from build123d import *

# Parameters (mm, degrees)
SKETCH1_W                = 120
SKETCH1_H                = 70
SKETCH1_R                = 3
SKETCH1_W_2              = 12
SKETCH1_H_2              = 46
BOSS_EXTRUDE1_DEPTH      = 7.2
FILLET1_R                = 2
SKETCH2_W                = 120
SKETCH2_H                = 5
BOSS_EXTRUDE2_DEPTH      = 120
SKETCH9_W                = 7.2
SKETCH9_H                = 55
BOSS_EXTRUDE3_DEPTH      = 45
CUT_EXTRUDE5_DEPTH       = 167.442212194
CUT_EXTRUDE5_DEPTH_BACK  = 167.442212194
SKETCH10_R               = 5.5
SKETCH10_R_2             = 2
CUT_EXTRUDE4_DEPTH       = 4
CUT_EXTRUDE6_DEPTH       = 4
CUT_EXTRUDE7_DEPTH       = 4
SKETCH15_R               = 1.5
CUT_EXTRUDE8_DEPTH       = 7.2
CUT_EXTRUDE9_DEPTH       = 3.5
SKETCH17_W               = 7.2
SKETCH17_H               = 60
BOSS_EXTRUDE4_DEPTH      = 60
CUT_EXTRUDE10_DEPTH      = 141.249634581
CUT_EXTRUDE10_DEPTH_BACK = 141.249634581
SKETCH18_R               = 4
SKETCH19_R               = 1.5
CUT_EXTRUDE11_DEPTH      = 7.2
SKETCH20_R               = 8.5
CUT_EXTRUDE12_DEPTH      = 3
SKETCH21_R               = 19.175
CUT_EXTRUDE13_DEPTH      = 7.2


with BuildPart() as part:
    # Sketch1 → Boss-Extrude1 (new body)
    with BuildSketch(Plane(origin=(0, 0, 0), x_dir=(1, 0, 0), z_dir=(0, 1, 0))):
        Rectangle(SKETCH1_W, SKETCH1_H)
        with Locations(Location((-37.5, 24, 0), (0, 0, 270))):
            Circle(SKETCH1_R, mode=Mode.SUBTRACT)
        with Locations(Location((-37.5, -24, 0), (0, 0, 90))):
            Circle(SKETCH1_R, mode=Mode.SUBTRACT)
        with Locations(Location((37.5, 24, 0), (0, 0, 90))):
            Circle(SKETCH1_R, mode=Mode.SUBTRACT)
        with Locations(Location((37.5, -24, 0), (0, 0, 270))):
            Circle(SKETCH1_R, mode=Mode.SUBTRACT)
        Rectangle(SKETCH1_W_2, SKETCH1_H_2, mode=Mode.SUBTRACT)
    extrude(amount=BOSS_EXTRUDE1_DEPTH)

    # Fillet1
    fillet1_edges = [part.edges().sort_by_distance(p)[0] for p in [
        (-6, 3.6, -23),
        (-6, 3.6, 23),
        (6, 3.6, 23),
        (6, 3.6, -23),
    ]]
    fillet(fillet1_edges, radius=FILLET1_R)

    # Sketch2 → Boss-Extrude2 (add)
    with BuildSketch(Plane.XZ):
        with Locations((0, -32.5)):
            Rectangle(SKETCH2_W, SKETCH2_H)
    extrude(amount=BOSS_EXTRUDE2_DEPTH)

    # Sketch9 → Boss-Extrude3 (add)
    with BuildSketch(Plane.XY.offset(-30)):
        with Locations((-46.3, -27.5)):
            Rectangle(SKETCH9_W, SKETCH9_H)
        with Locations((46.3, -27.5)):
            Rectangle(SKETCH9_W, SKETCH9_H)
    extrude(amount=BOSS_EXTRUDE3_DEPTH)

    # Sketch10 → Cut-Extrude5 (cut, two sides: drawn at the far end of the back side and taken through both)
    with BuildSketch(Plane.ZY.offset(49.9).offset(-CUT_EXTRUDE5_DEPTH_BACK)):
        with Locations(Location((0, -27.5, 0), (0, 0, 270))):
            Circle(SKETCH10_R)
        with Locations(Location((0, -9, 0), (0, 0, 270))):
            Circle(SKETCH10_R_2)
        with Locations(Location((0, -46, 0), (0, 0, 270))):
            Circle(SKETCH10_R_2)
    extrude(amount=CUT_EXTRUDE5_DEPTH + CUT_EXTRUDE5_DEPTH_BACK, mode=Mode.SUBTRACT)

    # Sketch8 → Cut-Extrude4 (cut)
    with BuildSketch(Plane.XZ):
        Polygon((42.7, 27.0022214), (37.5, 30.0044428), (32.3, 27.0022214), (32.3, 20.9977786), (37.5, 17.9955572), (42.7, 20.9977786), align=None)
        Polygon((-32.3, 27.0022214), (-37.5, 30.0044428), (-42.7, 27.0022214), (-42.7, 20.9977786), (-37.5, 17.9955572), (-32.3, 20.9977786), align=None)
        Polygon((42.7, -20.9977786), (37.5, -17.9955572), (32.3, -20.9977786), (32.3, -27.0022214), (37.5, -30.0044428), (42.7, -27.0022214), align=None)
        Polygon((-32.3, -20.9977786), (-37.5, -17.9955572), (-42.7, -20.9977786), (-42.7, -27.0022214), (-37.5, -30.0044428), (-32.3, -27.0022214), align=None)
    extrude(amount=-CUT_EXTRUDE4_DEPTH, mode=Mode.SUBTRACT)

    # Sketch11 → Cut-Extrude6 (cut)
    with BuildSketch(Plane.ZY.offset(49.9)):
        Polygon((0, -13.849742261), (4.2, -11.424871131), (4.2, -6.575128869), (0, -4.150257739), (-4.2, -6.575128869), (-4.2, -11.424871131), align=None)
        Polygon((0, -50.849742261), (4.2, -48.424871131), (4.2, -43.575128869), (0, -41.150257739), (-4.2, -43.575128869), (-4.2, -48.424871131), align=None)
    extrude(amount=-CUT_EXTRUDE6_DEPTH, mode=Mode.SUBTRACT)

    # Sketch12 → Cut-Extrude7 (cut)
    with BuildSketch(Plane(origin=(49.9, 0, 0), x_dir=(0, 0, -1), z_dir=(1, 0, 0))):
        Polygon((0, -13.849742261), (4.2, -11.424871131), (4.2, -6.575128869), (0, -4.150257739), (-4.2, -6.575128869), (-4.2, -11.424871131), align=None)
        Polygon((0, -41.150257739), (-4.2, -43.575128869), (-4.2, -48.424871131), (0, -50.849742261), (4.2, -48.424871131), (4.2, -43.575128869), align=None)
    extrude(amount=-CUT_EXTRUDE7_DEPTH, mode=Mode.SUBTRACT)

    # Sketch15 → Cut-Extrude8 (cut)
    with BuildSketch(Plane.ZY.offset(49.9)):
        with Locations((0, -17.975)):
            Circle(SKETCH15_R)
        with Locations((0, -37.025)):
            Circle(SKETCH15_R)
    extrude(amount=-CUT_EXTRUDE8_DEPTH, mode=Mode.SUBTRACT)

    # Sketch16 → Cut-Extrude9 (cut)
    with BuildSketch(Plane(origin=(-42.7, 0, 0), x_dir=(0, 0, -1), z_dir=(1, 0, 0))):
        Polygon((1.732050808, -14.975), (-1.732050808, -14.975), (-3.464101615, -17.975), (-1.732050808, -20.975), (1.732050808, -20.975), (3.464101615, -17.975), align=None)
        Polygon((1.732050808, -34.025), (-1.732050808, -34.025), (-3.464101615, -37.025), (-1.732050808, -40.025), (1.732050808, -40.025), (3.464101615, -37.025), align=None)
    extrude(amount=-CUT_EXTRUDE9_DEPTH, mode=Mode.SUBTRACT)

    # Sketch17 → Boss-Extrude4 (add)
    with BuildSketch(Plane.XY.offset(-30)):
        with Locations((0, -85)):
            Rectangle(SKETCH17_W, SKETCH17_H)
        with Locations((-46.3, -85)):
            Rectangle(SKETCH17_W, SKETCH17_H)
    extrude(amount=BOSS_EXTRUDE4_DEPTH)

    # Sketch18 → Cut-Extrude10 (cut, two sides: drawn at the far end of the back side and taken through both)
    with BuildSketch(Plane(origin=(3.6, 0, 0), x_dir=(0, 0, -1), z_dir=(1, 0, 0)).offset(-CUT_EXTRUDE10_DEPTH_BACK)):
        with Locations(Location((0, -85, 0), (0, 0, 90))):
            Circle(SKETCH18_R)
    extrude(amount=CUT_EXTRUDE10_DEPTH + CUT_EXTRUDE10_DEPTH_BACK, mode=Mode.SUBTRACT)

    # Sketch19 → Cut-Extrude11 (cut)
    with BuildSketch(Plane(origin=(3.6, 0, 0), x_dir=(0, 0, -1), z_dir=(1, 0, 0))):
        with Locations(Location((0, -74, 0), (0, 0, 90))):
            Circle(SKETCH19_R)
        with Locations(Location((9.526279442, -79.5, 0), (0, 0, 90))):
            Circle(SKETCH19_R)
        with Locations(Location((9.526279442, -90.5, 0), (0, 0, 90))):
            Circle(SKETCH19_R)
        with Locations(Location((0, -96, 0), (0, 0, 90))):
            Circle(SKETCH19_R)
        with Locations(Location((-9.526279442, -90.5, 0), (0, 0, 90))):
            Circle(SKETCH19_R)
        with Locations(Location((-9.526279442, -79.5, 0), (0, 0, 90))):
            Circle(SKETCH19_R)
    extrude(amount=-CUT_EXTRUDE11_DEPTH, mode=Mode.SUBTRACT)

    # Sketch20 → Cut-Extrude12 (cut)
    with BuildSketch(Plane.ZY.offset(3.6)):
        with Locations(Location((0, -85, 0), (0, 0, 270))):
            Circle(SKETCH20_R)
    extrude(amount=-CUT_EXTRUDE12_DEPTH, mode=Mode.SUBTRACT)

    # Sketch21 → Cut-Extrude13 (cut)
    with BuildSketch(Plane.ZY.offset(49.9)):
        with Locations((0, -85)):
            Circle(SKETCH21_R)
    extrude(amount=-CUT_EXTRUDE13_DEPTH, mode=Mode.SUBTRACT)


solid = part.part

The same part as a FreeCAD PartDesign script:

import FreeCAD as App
import Part
import Sketcher

V = App.Vector
Q = App.Units.Quantity


def edges_at(feature, points):
    """Names of the edges that pass closest to the given points."""
    edges = feature.Shape.Edges
    near = lambda p: min(range(len(edges)), key=lambda i: edges[i].distToShape(Part.Vertex(*p))[0])
    return sorted({f"Edge{near(p) + 1}" for p in points})


def add_polygon(sketch, points):
    """Adds a closed chain of lines whose ends are joined by coincident constraints."""
    first, n = sketch.GeometryCount, len(points)
    for a, b in zip(points, points[1:] + points[:1]):
        sketch.addGeometry(Part.LineSegment(App.Vector(*a, 0), App.Vector(*b, 0)), False)
    for i in range(n):
        sketch.addConstraint(Sketcher.Constraint("Coincident", first + i, 2, first + (i + 1) % n, 1))

doc = App.newDocument("Part")
params = doc.addObject("Spreadsheet::Sheet", "Params")
for row, (alias, value) in enumerate([
    ("sketch1_diameter", "6 mm"),
    ("sketch1_width", "120 mm"),
    ("sketch1_width2", "12 mm"),
    ("sketch1_height", "70 mm"),
    ("sketch1_height2", "46 mm"),
    ("pad1_length", "7.2 mm"),
    ("fillet_radius", "2 mm"),
    ("sketch2_width", "120 mm"),
    ("sketch2_height", "5 mm"),
    ("pad2_length", "120 mm"),
    ("sketch3_height", "55 mm"),
    ("sketch3_width", "7.2 mm"),
    ("pad3_length", "45 mm"),
    ("sketch4_diameter", "11 mm"),
    ("sketch4_diameter2", "4 mm"),
    ("pocket2_length", "4 mm"),
    ("pocket3_length", "4 mm"),
    ("pocket4_length", "4 mm"),
    ("sketch8_diameter", "3 mm"),
    ("pocket5_length", "7.2 mm"),
    ("pocket6_length", "3.5 mm"),
    ("sketch10_height", "60 mm"),
    ("sketch10_width", "7.2 mm"),
    ("pad4_length", "60 mm"),
    ("sketch11_diameter", "8 mm"),
    ("sketch12_diameter", "3 mm"),
    ("pocket8_length", "7.2 mm"),
    ("sketch13_diameter", "17 mm"),
    ("pocket9_length", "3 mm"),
    ("sketch14_diameter", "38.35 mm"),
    ("pocket10_length", "7.2 mm"),
], start=1):
    params.set(f"A{row}", alias)
    params.set(f"B{row}", "=" + value)
    params.setAlias(f"B{row}", alias)

body = doc.addObject("PartDesign::Body", "Body")

# Sketch on XZ plane
sketch1 = body.newObject("Sketcher::SketchObject", "Sketch")
sketch1.AttachmentSupport = (doc.getObject("XZ_Plane"), [""])
sketch1.MapMode = "FlatFace"
add_polygon(sketch1, [(-60, -35), (-60, 35), (60, 35), (60, -35)])  # lines 0-3
sketch1.addGeometry(Part.Circle(V(-37.5, 24, 0), V(0, 0, 1), 3), False)  # 4
sketch1.addGeometry(Part.Circle(V(37.5, 24, 0), V(0, 0, 1), 3), False)  # 5
sketch1.addGeometry(Part.Circle(V(-37.5, -24, 0), V(0, 0, 1), 3), False)  # 6
add_polygon(sketch1, [(6, 23), (-6, 23), (-6, -23), (6, -23)])  # lines 7-10
sketch1.addGeometry(Part.Circle(V(37.5, -24, 0), V(0, 0, 1), 3), False)  # 11
sketch1.addConstraint(Sketcher.Constraint("Vertical", 0))
sketch1.addConstraint(Sketcher.Constraint("Horizontal", 1))
sketch1.addConstraint(Sketcher.Constraint("Vertical", 2))
sketch1.addConstraint(Sketcher.Constraint("Horizontal", 3))
sketch1.addConstraint(Sketcher.Constraint("Horizontal", 7))
sketch1.addConstraint(Sketcher.Constraint("Vertical", 8))
sketch1.addConstraint(Sketcher.Constraint("Horizontal", 9))
sketch1.addConstraint(Sketcher.Constraint("Vertical", 10))
sketch1.addConstraint(Sketcher.Constraint("Equal", 4, 5))
sketch1.addConstraint(Sketcher.Constraint("Equal", 5, 6))
sketch1.addConstraint(Sketcher.Constraint("Equal", 6, 11))
sketch1.addConstraint(Sketcher.Constraint("Symmetric", 5, 3, 6, 3, -1, 1))
sketch1.addConstraint(Sketcher.Constraint("Symmetric", 4, 3, 11, 3, -1, 1))
sketch1.addConstraint(Sketcher.Constraint("Symmetric", 0, 2, 2, 2, -1, 1))
sketch1.addConstraint(Sketcher.Constraint("Symmetric", 7, 2, 9, 2, -1, 1))
sketch1.addConstraint(Sketcher.Constraint("Symmetric", 4, 3, 5, 3, -2))
sketch1.addConstraint(Sketcher.Constraint("Diameter", 4, Q("6 mm")))
sketch1.addConstraint(Sketcher.Constraint("DistanceX", 1, 1, 1, 2, Q("120 mm")))
sketch1.addConstraint(Sketcher.Constraint("DistanceX", 7, 2, 7, 1, Q("12 mm")))
sketch1.addConstraint(Sketcher.Constraint("DistanceY", 0, 1, 0, 2, Q("70 mm")))
sketch1.addConstraint(Sketcher.Constraint("DistanceY", 8, 2, 8, 1, Q("46 mm")))
sketch1.addConstraint(Sketcher.Constraint("DistanceY", -1, 1, 4, 3, Q("24 mm")))
sketch1.addConstraint(Sketcher.Constraint("DistanceX", 4, 3, 5, 3, Q("75 mm")))
sketch1.setExpression("Constraints[24]", "Params.sketch1_diameter")
sketch1.setExpression("Constraints[25]", "Params.sketch1_width")
sketch1.setExpression("Constraints[26]", "Params.sketch1_width2")
sketch1.setExpression("Constraints[27]", "Params.sketch1_height")
sketch1.setExpression("Constraints[28]", "Params.sketch1_height2")
pad1 = body.newObject("PartDesign::Pad", "Pad")
pad1.Profile = sketch1
pad1.setExpression("Length", "Params.pad1_length")
pad1.Reversed = True
doc.recompute()

fillet = body.newObject("PartDesign::Fillet", "Fillet")
fillet.Base = (pad1, edges_at(pad1, [
    (-6, 3.6, -23),
    (-6, 3.6, 23),
    (6, 3.6, 23),
    (6, 3.6, -23),
]))
fillet.setExpression("Radius", "Params.fillet_radius")

# Sketch on XZ plane
sketch2 = body.newObject("Sketcher::SketchObject", "Sketch001")
sketch2.AttachmentSupport = (doc.getObject("XZ_Plane"), [""])
sketch2.MapMode = "FlatFace"
add_polygon(sketch2, [(-60, -30), (-60, -35), (60, -35), (60, -30)])  # lines 0-3
sketch2.addConstraint(Sketcher.Constraint("Vertical", 0))
sketch2.addConstraint(Sketcher.Constraint("Horizontal", 1))
sketch2.addConstraint(Sketcher.Constraint("Vertical", 2))
sketch2.addConstraint(Sketcher.Constraint("Horizontal", 3))
sketch2.addConstraint(Sketcher.Constraint("DistanceX", 1, 1, 1, 2, Q("120 mm")))
sketch2.addConstraint(Sketcher.Constraint("DistanceY", 0, 2, 0, 1, Q("5 mm")))
sketch2.addConstraint(Sketcher.Constraint("DistanceX", 0, 2, -1, 1, Q("60 mm")))
sketch2.addConstraint(Sketcher.Constraint("DistanceY", 0, 2, -1, 1, Q("35 mm")))
sketch2.setExpression("Constraints[8]", "Params.sketch2_width")
sketch2.setExpression("Constraints[9]", "Params.sketch2_height")
pad2 = body.newObject("PartDesign::Pad", "Pad001")
pad2.Profile = sketch2
pad2.setExpression("Length", "Params.pad2_length")

# Sketch on XY plane
sketch3 = body.newObject("Sketcher::SketchObject", "Sketch002")
sketch3.AttachmentSupport = (doc.getObject("XY_Plane"), [""])
sketch3.MapMode = "FlatFace"
sketch3.AttachmentOffset = App.Placement(V(0, 0, -30), App.Rotation())
add_polygon(sketch3, [(-50, 0), (-50, -55), (-43, -55), (-43, 0)])  # lines 0-3
add_polygon(sketch3, [(43, 0), (43, -55), (50, -55), (50, 0)])  # lines 4-7
sketch3.addConstraint(Sketcher.Constraint("Vertical", 0))
sketch3.addConstraint(Sketcher.Constraint("Horizontal", 1))
sketch3.addConstraint(Sketcher.Constraint("Vertical", 2))
sketch3.addConstraint(Sketcher.Constraint("Horizontal", 3))
sketch3.addConstraint(Sketcher.Constraint("Vertical", 4))
sketch3.addConstraint(Sketcher.Constraint("Horizontal", 5))
sketch3.addConstraint(Sketcher.Constraint("Vertical", 6))
sketch3.addConstraint(Sketcher.Constraint("Horizontal", 7))
sketch3.addConstraint(Sketcher.Constraint("Symmetric", 3, 2, 6, 2, -1, 1))
sketch3.addConstraint(Sketcher.Constraint("Symmetric", 1, 2, 4, 2, -2))
sketch3.addConstraint(Sketcher.Constraint("PointOnObject", 2, 2, -1))
sketch3.addConstraint(Sketcher.Constraint("DistanceY", 0, 2, 0, 1, Q("55 mm")))
sketch3.addConstraint(Sketcher.Constraint("DistanceX", 1, 1, 1, 2, Q("7.2 mm")))
sketch3.addConstraint(Sketcher.Constraint("DistanceX", 0, 2, -1, 1, Q("49.9 mm")))
sketch3.setExpression("Constraints[19]", "Params.sketch3_height")
sketch3.setExpression("Constraints[20]", "Params.sketch3_width")
pad3 = body.newObject("PartDesign::Pad", "Pad002")
pad3.Profile = sketch3
pad3.setExpression("Length", "Params.pad3_length")

# Sketch on YZ plane
sketch4 = body.newObject("Sketcher::SketchObject", "Sketch003")
sketch4.AttachmentSupport = (doc.getObject("YZ_Plane"), [""])
sketch4.MapMode = "FlatFace"
sketch4.AttachmentOffset = App.Placement(V(0, 0, -49.9), App.Rotation())
sketch4.addGeometry(Part.Circle(V(-27.5, 0, 0), V(0, 0, 1), 5.5), False)
sketch4.addGeometry(Part.Circle(V(-9, 0, 0), V(0, 0, 1), 2), False)
sketch4.addGeometry(Part.Circle(V(-46, 0, 0), V(0, 0, 1), 2), False)
sketch4.addConstraint(Sketcher.Constraint("Equal", 1, 2))
sketch4.addConstraint(Sketcher.Constraint("PointOnObject", 0, 3, -1))
sketch4.addConstraint(Sketcher.Constraint("PointOnObject", 1, 3, -1))
sketch4.addConstraint(Sketcher.Constraint("PointOnObject", 2, 3, -1))
sketch4.addConstraint(Sketcher.Constraint("Diameter", 0, Q("11 mm")))
sketch4.addConstraint(Sketcher.Constraint("Diameter", 1, Q("4 mm")))
sketch4.addConstraint(Sketcher.Constraint("DistanceX", 1, 3, -1, 1, Q("9 mm")))
sketch4.addConstraint(Sketcher.Constraint("DistanceX", 2, 3, -1, 1, Q("46 mm")))
sketch4.addConstraint(Sketcher.Constraint("DistanceX", 0, 3, -1, 1, Q("27.5 mm")))
sketch4.setExpression("Constraints[4]", "Params.sketch4_diameter")
sketch4.setExpression("Constraints[5]", "Params.sketch4_diameter2")
pocket1 = body.newObject("PartDesign::Pocket", "Pocket")
pocket1.Profile = sketch4
pocket1.Type = "ThroughAll"
pocket1.Midplane = True

# Sketch on XZ plane
sketch5 = body.newObject("Sketcher::SketchObject", "Sketch004")
sketch5.AttachmentSupport = (doc.getObject("XZ_Plane"), [""])
sketch5.MapMode = "FlatFace"
add_polygon(sketch5, [(43, 27), (38, 30), (32, 27), (32, 21), (38, 18), (43, 21)])  # lines 0-5
add_polygon(sketch5, [(-32, 27), (-38, 30), (-43, 27), (-43, 21), (-38, 18), (-32, 21)])  # lines 6-11
add_polygon(sketch5, [(43, -21), (38, -18), (32, -21), (32, -27), (38, -30), (43, -27)])  # lines 12-17
add_polygon(sketch5, [(-32, -21), (-38, -18), (-43, -21), (-43, -27), (-38, -30), (-32, -27)])  # lines 18-23
sketch5.addConstraint(Sketcher.Constraint("Vertical", 2))
sketch5.addConstraint(Sketcher.Constraint("Vertical", 5))
sketch5.addConstraint(Sketcher.Constraint("Vertical", 8))
sketch5.addConstraint(Sketcher.Constraint("Vertical", 11))
sketch5.addConstraint(Sketcher.Constraint("Vertical", 14))
sketch5.addConstraint(Sketcher.Constraint("Vertical", 17))
sketch5.addConstraint(Sketcher.Constraint("Vertical", 20))
sketch5.addConstraint(Sketcher.Constraint("Vertical", 23))
sketch5.addConstraint(Sketcher.Constraint("Symmetric", 9, 2, 12, 2, -1, 1))
sketch5.addConstraint(Sketcher.Constraint("Symmetric", 10, 2, 13, 2, -1, 1))
sketch5.addConstraint(Sketcher.Constraint("Symmetric", 6, 2, 15, 2, -1, 1))
sketch5.addConstraint(Sketcher.Constraint("Symmetric", 7, 2, 16, 2, -1, 1))
sketch5.addConstraint(Sketcher.Constraint("Symmetric", 3, 2, 18, 2, -1, 1))
sketch5.addConstraint(Sketcher.Constraint("Symmetric", 4, 2, 19, 2, -1, 1))
sketch5.addConstraint(Sketcher.Constraint("Symmetric", 0, 2, 21, 2, -1, 1))
sketch5.addConstraint(Sketcher.Constraint("Symmetric", 1, 2, 22, 2, -1, 1))
sketch5.addConstraint(Sketcher.Constraint("Symmetric", 0, 2, 6, 2, -2))
sketch5.addConstraint(Sketcher.Constraint("Symmetric", 5, 2, 7, 2, -2))
sketch5.addConstraint(Sketcher.Constraint("Symmetric", 3, 2, 9, 2, -2))
sketch5.addConstraint(Sketcher.Constraint("Symmetric", 2, 2, 10, 2, -2))
sketch5.addConstraint(Sketcher.Constraint("Parallel", 0, 3))
sketch5.addConstraint(Sketcher.Constraint("Parallel", 1, 4))
sketch5.addConstraint(Sketcher.Constraint("Parallel", 3, 6))
sketch5.addConstraint(Sketcher.Constraint("Parallel", 4, 7))
sketch5.addConstraint(Sketcher.Constraint("Parallel", 6, 9))
sketch5.addConstraint(Sketcher.Constraint("Parallel", 9, 12))
sketch5.addConstraint(Sketcher.Constraint("Parallel", 12, 15))
sketch5.addConstraint(Sketcher.Constraint("Parallel", 15, 18))
sketch5.addConstraint(Sketcher.Constraint("Parallel", 18, 21))
sketch5.addConstraint(Sketcher.Constraint("Horizontal", 2, 2, 4, 2))
sketch5.addConstraint(Sketcher.Constraint("Horizontal", 1, 2, 5, 2))
sketch5.addConstraint(Sketcher.Constraint("Angle", 0, Q("150 deg")))
sketch5.addConstraint(Sketcher.Constraint("DistanceX", 6, 2, 0, 2, Q("75 mm")))
sketch5.addConstraint(Sketcher.Constraint("DistanceY", 13, 2, 1, 2, Q("48 mm")))
sketch5.addConstraint(Sketcher.Constraint("DistanceX", -1, 1, 1, 2, Q("32.3 mm")))
sketch5.addConstraint(Sketcher.Constraint("DistanceY", 2, 2, 2, 1, Q("6.004443 mm")))
pocket2 = body.newObject("PartDesign::Pocket", "Pocket001")
pocket2.Profile = sketch5
pocket2.setExpression("Length", "Params.pocket2_length")

# Sketch on YZ plane
sketch6 = body.newObject("Sketcher::SketchObject", "Sketch005")
sketch6.AttachmentSupport = (doc.getObject("YZ_Plane"), [""])
sketch6.MapMode = "FlatFace"
sketch6.AttachmentOffset = App.Placement(V(0, 0, -49.9), App.Rotation())
add_polygon(sketch6, [(-13.8, 0), (-11.4, 4.2), (-6.6, 4.2), (-4.2, 0), (-6.6, -4.2), (-11.4, -4.2)])  # lines 0-5
add_polygon(sketch6, [(-50.8, 0), (-48.4, 4.2), (-43.6, 4.2), (-41.2, 0), (-43.6, -4.2), (-48.4, -4.2)])  # lines 6-11
sketch6.addConstraint(Sketcher.Constraint("Horizontal", 1))
sketch6.addConstraint(Sketcher.Constraint("Horizontal", 4))
sketch6.addConstraint(Sketcher.Constraint("Horizontal", 7))
sketch6.addConstraint(Sketcher.Constraint("Horizontal", 10))
sketch6.addConstraint(Sketcher.Constraint("Symmetric", 1, 2, 3, 2, -1))
sketch6.addConstraint(Sketcher.Constraint("Symmetric", 7, 2, 9, 2, -1))
sketch6.addConstraint(Sketcher.Constraint("PointOnObject", 2, 2, -1))
sketch6.addConstraint(Sketcher.Constraint("PointOnObject", 5, 2, -1))
sketch6.addConstraint(Sketcher.Constraint("PointOnObject", 8, 2, -1))
sketch6.addConstraint(Sketcher.Constraint("PointOnObject", 11, 2, -1))
sketch6.addConstraint(Sketcher.Constraint("Parallel", 0, 3))
sketch6.addConstraint(Sketcher.Constraint("Parallel", 2, 5))
sketch6.addConstraint(Sketcher.Constraint("Parallel", 3, 6))
sketch6.addConstraint(Sketcher.Constraint("Parallel", 5, 8))
sketch6.addConstraint(Sketcher.Constraint("Parallel", 8, 11))
sketch6.addConstraint(Sketcher.Constraint("Horizontal", 1, 2, 6, 2))
sketch6.addConstraint(Sketcher.Constraint("Equal", 4, 7))
sketch6.addConstraint(Sketcher.Constraint("Angle", 0, Q("60 deg")))
sketch6.addConstraint(Sketcher.Constraint("DistanceX", 6, 2, 0, 2, Q("37 mm")))
sketch6.addConstraint(Sketcher.Constraint("DistanceY", -1, 1, 0, 2, Q("4.2 mm")))
sketch6.addConstraint(Sketcher.Constraint("DistanceX", 1, 1, 1, 2, Q("4.849742 mm")))
sketch6.addConstraint(Sketcher.Constraint("DistanceX", 0, 2, -1, 1, Q("11.424871 mm")))
pocket3 = body.newObject("PartDesign::Pocket", "Pocket002")
pocket3.Profile = sketch6
pocket3.setExpression("Length", "Params.pocket3_length")
pocket3.Reversed = True

# Sketch on YZ plane
sketch7 = body.newObject("Sketcher::SketchObject", "Sketch006")
sketch7.AttachmentSupport = (doc.getObject("YZ_Plane"), [""])
sketch7.MapMode = "FlatFace"
sketch7.AttachmentOffset = App.Placement(V(0, 0, 49.9), App.Rotation())
add_polygon(sketch7, [(-13.8, 0), (-11.4, -4.2), (-6.6, -4.2), (-4.2, 0), (-6.6, 4.2), (-11.4, 4.2)])  # lines 0-5
add_polygon(sketch7, [(-41.2, 0), (-43.6, 4.2), (-48.4, 4.2), (-50.8, 0), (-48.4, -4.2), (-43.6, -4.2)])  # lines 6-11
sketch7.addConstraint(Sketcher.Constraint("Horizontal", 1))
sketch7.addConstraint(Sketcher.Constraint("Horizontal", 4))
sketch7.addConstraint(Sketcher.Constraint("Horizontal", 7))
sketch7.addConstraint(Sketcher.Constraint("Horizontal", 10))
sketch7.addConstraint(Sketcher.Constraint("Symmetric", 1, 2, 3, 2, -1))
sketch7.addConstraint(Sketcher.Constraint("Symmetric", 7, 2, 9, 2, -1))
sketch7.addConstraint(Sketcher.Constraint("PointOnObject", 2, 2, -1))
sketch7.addConstraint(Sketcher.Constraint("PointOnObject", 5, 2, -1))
sketch7.addConstraint(Sketcher.Constraint("PointOnObject", 8, 2, -1))
sketch7.addConstraint(Sketcher.Constraint("PointOnObject", 11, 2, -1))
sketch7.addConstraint(Sketcher.Constraint("Parallel", 0, 3))
sketch7.addConstraint(Sketcher.Constraint("Parallel", 2, 5))
sketch7.addConstraint(Sketcher.Constraint("Parallel", 3, 6))
sketch7.addConstraint(Sketcher.Constraint("Parallel", 5, 8))
sketch7.addConstraint(Sketcher.Constraint("Parallel", 8, 11))
sketch7.addConstraint(Sketcher.Constraint("Horizontal", 4, 2, 6, 2))
sketch7.addConstraint(Sketcher.Constraint("Equal", 4, 7))
sketch7.addConstraint(Sketcher.Constraint("Angle", 0, Q("-60 deg")))
sketch7.addConstraint(Sketcher.Constraint("DistanceX", 6, 2, 3, 2, Q("37 mm")))
sketch7.addConstraint(Sketcher.Constraint("DistanceY", 0, 2, -1, 1, Q("4.2 mm")))
sketch7.addConstraint(Sketcher.Constraint("DistanceX", 1, 1, 1, 2, Q("4.849742 mm")))
sketch7.addConstraint(Sketcher.Constraint("DistanceX", 0, 2, -1, 1, Q("11.424871 mm")))
pocket4 = body.newObject("PartDesign::Pocket", "Pocket003")
pocket4.Profile = sketch7
pocket4.setExpression("Length", "Params.pocket4_length")

# Sketch on YZ plane
sketch8 = body.newObject("Sketcher::SketchObject", "Sketch007")
sketch8.AttachmentSupport = (doc.getObject("YZ_Plane"), [""])
sketch8.MapMode = "FlatFace"
sketch8.AttachmentOffset = App.Placement(V(0, 0, -49.9), App.Rotation())
sketch8.addGeometry(Part.Circle(V(-18, 0, 0), V(0, 0, 1), 1.5), False)
sketch8.addGeometry(Part.Circle(V(-37, 0, 0), V(0, 0, 1), 1.5), False)
sketch8.addConstraint(Sketcher.Constraint("Equal", 0, 1))
sketch8.addConstraint(Sketcher.Constraint("PointOnObject", 0, 3, -1))
sketch8.addConstraint(Sketcher.Constraint("PointOnObject", 1, 3, -1))
sketch8.addConstraint(Sketcher.Constraint("Diameter", 0, Q("3 mm")))
sketch8.addConstraint(Sketcher.Constraint("DistanceX", 1, 3, 0, 3, Q("19.05 mm")))
sketch8.addConstraint(Sketcher.Constraint("DistanceX", 0, 3, -1, 1, Q("17.975 mm")))
sketch8.setExpression("Constraints[3]", "Params.sketch8_diameter")
pocket5 = body.newObject("PartDesign::Pocket", "Pocket004")
pocket5.Profile = sketch8
pocket5.setExpression("Length", "Params.pocket5_length")
pocket5.Reversed = True

# Sketch on YZ plane
sketch9 = body.newObject("Sketcher::SketchObject", "Sketch008")
sketch9.AttachmentSupport = (doc.getObject("YZ_Plane"), [""])
sketch9.MapMode = "FlatFace"
sketch9.AttachmentOffset = App.Placement(V(0, 0, -42.7), App.Rotation())
add_polygon(sketch9, [(-15, -1.7), (-15, 1.7), (-18, 3.5), (-21, 1.7), (-21, -1.7), (-18, -3.5)])  # lines 0-5
add_polygon(sketch9, [(-34, -1.7), (-34, 1.7), (-37, 3.5), (-40, 1.7), (-40, -1.7), (-37, -3.5)])  # lines 6-11
sketch9.addConstraint(Sketcher.Constraint("Vertical", 0))
sketch9.addConstraint(Sketcher.Constraint("Vertical", 3))
sketch9.addConstraint(Sketcher.Constraint("Vertical", 6))
sketch9.addConstraint(Sketcher.Constraint("Vertical", 9))
sketch9.addConstraint(Sketcher.Constraint("Symmetric", 1, 2, 4, 2, -1))
sketch9.addConstraint(Sketcher.Constraint("Symmetric", 7, 2, 10, 2, -1))
sketch9.addConstraint(Sketcher.Constraint("Parallel", 1, 4))
sketch9.addConstraint(Sketcher.Constraint("Parallel", 2, 5))
sketch9.addConstraint(Sketcher.Constraint("Parallel", 4, 7))
sketch9.addConstraint(Sketcher.Constraint("Parallel", 5, 8))
sketch9.addConstraint(Sketcher.Constraint("Parallel", 7, 10))
sketch9.addConstraint(Sketcher.Constraint("Parallel", 8, 11))
sketch9.addConstraint(Sketcher.Constraint("Horizontal", 0, 2, 2, 2))
sketch9.addConstraint(Sketcher.Constraint("Horizontal", 3, 2, 5, 2))
sketch9.addConstraint(Sketcher.Constraint("Horizontal", 2, 2, 6, 2))
sketch9.addConstraint(Sketcher.Constraint("Horizontal", 1, 2, 7, 2))
sketch9.addConstraint(Sketcher.Constraint("Horizontal", 6, 2, 8, 2))
sketch9.addConstraint(Sketcher.Constraint("Angle", 1, Q("150 deg")))
sketch9.addConstraint(Sketcher.Constraint("DistanceX", 1, 2, 0, 2, Q("3 mm")))
sketch9.addConstraint(Sketcher.Constraint("DistanceX", 6, 2, 2, 2, Q("13.05 mm")))
sketch9.addConstraint(Sketcher.Constraint("DistanceY", 0, 1, 0, 2, Q("3.464102 mm")))
sketch9.addConstraint(Sketcher.Constraint("DistanceX", 0, 2, -1, 1, Q("14.975 mm")))
pocket6 = body.newObject("PartDesign::Pocket", "Pocket005")
pocket6.Profile = sketch9
pocket6.setExpression("Length", "Params.pocket6_length")

# Sketch on XY plane
sketch10 = body.newObject("Sketcher::SketchObject", "Sketch009")
sketch10.AttachmentSupport = (doc.getObject("XY_Plane"), [""])
sketch10.MapMode = "FlatFace"
sketch10.AttachmentOffset = App.Placement(V(0, 0, -30), App.Rotation())
add_polygon(sketch10, [(-4, -55), (-4, -115), (4, -115), (4, -55)])  # lines 0-3
add_polygon(sketch10, [(-50, -55), (-50, -115), (-43, -115), (-43, -55)])  # lines 4-7
sketch10.addConstraint(Sketcher.Constraint("Vertical", 0))
sketch10.addConstraint(Sketcher.Constraint("Horizontal", 1))
sketch10.addConstraint(Sketcher.Constraint("Vertical", 2))
sketch10.addConstraint(Sketcher.Constraint("Horizontal", 3))
sketch10.addConstraint(Sketcher.Constraint("Vertical", 4))
sketch10.addConstraint(Sketcher.Constraint("Horizontal", 5))
sketch10.addConstraint(Sketcher.Constraint("Vertical", 6))
sketch10.addConstraint(Sketcher.Constraint("Horizontal", 7))
sketch10.addConstraint(Sketcher.Constraint("Horizontal", 1, 2, 4, 2))
sketch10.addConstraint(Sketcher.Constraint("Horizontal", 3, 2, 6, 2))
sketch10.addConstraint(Sketcher.Constraint("Equal", 3, 5))
sketch10.addConstraint(Sketcher.Constraint("DistanceY", 0, 2, 0, 1, Q("60 mm")))
sketch10.addConstraint(Sketcher.Constraint("DistanceX", 1, 1, 1, 2, Q("7.2 mm")))
sketch10.addConstraint(Sketcher.Constraint("DistanceY", 0, 2, -1, 1, Q("115 mm")))
sketch10.addConstraint(Sketcher.Constraint("DistanceX", 0, 2, -1, 1, Q("3.6 mm")))
sketch10.addConstraint(Sketcher.Constraint("DistanceX", 4, 2, -1, 1, Q("49.9 mm")))
sketch10.setExpression("Constraints[19]", "Params.sketch10_height")
sketch10.setExpression("Constraints[20]", "Params.sketch10_width")
pad4 = body.newObject("PartDesign::Pad", "Pad003")
pad4.Profile = sketch10
pad4.setExpression("Length", "Params.pad4_length")

# Sketch on YZ plane
sketch11 = body.newObject("Sketcher::SketchObject", "Sketch010")
sketch11.AttachmentSupport = (doc.getObject("YZ_Plane"), [""])
sketch11.MapMode = "FlatFace"
sketch11.AttachmentOffset = App.Placement(V(0, 0, 3.6), App.Rotation())
sketch11.addGeometry(Part.Circle(V(-85, 0, 0), V(0, 0, 1), 4), False)
sketch11.addConstraint(Sketcher.Constraint("PointOnObject", 0, 3, -1))
sketch11.addConstraint(Sketcher.Constraint("Diameter", 0, Q("8 mm")))
sketch11.addConstraint(Sketcher.Constraint("DistanceX", 0, 3, -1, 1, Q("85 mm")))
sketch11.setExpression("Constraints[1]", "Params.sketch11_diameter")
pocket7 = body.newObject("PartDesign::Pocket", "Pocket006")
pocket7.Profile = sketch11
pocket7.Type = "ThroughAll"
pocket7.Midplane = True

# Sketch on YZ plane
sketch12 = body.newObject("Sketcher::SketchObject", "Sketch011")
sketch12.AttachmentSupport = (doc.getObject("YZ_Plane"), [""])
sketch12.MapMode = "FlatFace"
sketch12.AttachmentOffset = App.Placement(V(0, 0, 3.6), App.Rotation())
sketch12.addGeometry(Part.Circle(V(-74, 0, 0), V(0, 0, 1), 1.5), False)
sketch12.addGeometry(Part.Circle(V(-79.5, -9.5, 0), V(0, 0, 1), 1.5), False)
sketch12.addGeometry(Part.Circle(V(-90.5, -9.5, 0), V(0, 0, 1), 1.5), False)
sketch12.addGeometry(Part.Circle(V(-96, 0, 0), V(0, 0, 1), 1.5), False)
sketch12.addGeometry(Part.Circle(V(-90.5, 9.5, 0), V(0, 0, 1), 1.5), False)
sketch12.addGeometry(Part.Circle(V(-79.5, 9.5, 0), V(0, 0, 1), 1.5), False)
sketch12.addConstraint(Sketcher.Constraint("Equal", 0, 1))
sketch12.addConstraint(Sketcher.Constraint("Equal", 1, 2))
sketch12.addConstraint(Sketcher.Constraint("Equal", 2, 3))
sketch12.addConstraint(Sketcher.Constraint("Equal", 3, 4))
sketch12.addConstraint(Sketcher.Constraint("Equal", 4, 5))
sketch12.addConstraint(Sketcher.Constraint("Symmetric", 2, 3, 4, 3, -1))
sketch12.addConstraint(Sketcher.Constraint("Symmetric", 1, 3, 5, 3, -1))
sketch12.addConstraint(Sketcher.Constraint("PointOnObject", 0, 3, -1))
sketch12.addConstraint(Sketcher.Constraint("PointOnObject", 3, 3, -1))
sketch12.addConstraint(Sketcher.Constraint("Horizontal", 1, 3, 2, 3))
sketch12.addConstraint(Sketcher.Constraint("Diameter", 0, Q("3 mm")))
sketch12.addConstraint(Sketcher.Constraint("DistanceX", 0, 3, -1, 1, Q("74 mm")))
sketch12.addConstraint(Sketcher.Constraint("DistanceX", 3, 3, -1, 1, Q("96 mm")))
sketch12.addConstraint(Sketcher.Constraint("DistanceX", 2, 3, 1, 3, Q("11 mm")))
sketch12.addConstraint(Sketcher.Constraint("DistanceX", 1, 3, -1, 1, Q("79.5 mm")))
sketch12.addConstraint(Sketcher.Constraint("DistanceY", 1, 3, -1, 1, Q("9.526279 mm")))
sketch12.setExpression("Constraints[10]", "Params.sketch12_diameter")
pocket8 = body.newObject("PartDesign::Pocket", "Pocket007")
pocket8.Profile = sketch12
pocket8.setExpression("Length", "Params.pocket8_length")

# Sketch on YZ plane
sketch13 = body.newObject("Sketcher::SketchObject", "Sketch012")
sketch13.AttachmentSupport = (doc.getObject("YZ_Plane"), [""])
sketch13.MapMode = "FlatFace"
sketch13.AttachmentOffset = App.Placement(V(0, 0, -3.6), App.Rotation())
sketch13.addGeometry(Part.Circle(V(-85, 0, 0), V(0, 0, 1), 8), False)
sketch13.addConstraint(Sketcher.Constraint("PointOnObject", 0, 3, -1))
sketch13.addConstraint(Sketcher.Constraint("Diameter", 0, Q("17 mm")))
sketch13.addConstraint(Sketcher.Constraint("DistanceX", 0, 3, -1, 1, Q("85 mm")))
sketch13.setExpression("Constraints[1]", "Params.sketch13_diameter")
pocket9 = body.newObject("PartDesign::Pocket", "Pocket008")
pocket9.Profile = sketch13
pocket9.setExpression("Length", "Params.pocket9_length")
pocket9.Reversed = True

# Sketch on YZ plane
sketch14 = body.newObject("Sketcher::SketchObject", "Sketch013")
sketch14.AttachmentSupport = (doc.getObject("YZ_Plane"), [""])
sketch14.MapMode = "FlatFace"
sketch14.AttachmentOffset = App.Placement(V(0, 0, -49.9), App.Rotation())
sketch14.addGeometry(Part.Circle(V(-85, 0, 0), V(0, 0, 1), 19), False)
sketch14.addConstraint(Sketcher.Constraint("PointOnObject", 0, 3, -1))
sketch14.addConstraint(Sketcher.Constraint("Diameter", 0, Q("38.35 mm")))
sketch14.addConstraint(Sketcher.Constraint("DistanceX", 0, 3, -1, 1, Q("85 mm")))
sketch14.setExpression("Constraints[1]", "Params.sketch14_diameter")
pocket10 = body.newObject("PartDesign::Pocket", "Pocket009")
pocket10.Profile = sketch14
pocket10.setExpression("Length", "Params.pocket10_length")
pocket10.Reversed = True

doc.recompute()
